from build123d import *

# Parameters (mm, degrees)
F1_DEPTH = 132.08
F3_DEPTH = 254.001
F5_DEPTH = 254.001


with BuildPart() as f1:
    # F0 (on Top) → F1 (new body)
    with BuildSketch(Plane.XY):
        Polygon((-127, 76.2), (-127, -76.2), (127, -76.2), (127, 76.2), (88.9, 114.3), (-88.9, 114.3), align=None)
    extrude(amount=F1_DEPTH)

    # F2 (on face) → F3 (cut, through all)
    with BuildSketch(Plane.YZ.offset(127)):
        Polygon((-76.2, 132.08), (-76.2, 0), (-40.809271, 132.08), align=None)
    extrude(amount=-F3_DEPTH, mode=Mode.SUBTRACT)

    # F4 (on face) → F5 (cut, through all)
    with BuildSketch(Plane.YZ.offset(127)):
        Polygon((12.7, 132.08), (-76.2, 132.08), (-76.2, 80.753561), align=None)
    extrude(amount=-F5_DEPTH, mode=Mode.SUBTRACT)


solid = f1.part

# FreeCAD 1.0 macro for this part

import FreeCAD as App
import Part
import Sketcher

V = App.Vector
Q = App.Units.Quantity


def add_polygon(sketch, points):
    """Adds a closed chain of lines whose ends are joined by coincident constraints."""
    first, n = sketch.GeometryCount, len(points)
    for a, b in zip(points, points[1:] + points[:1]):
        sketch.addGeometry(Part.LineSegment(App.Vector(*a, 0), App.Vector(*b, 0)), False)
    for i in range(n):
        sketch.addConstraint(Sketcher.Constraint("Coincident", first + i, 2, first + (i + 1) % n, 1))

doc = App.newDocument("Part")
body = doc.addObject("PartDesign::Body", "Body")

# Sketch on XY plane
sketch1 = body.newObject("Sketcher::SketchObject", "Sketch")
sketch1.AttachmentSupport = (doc.getObject("XY_Plane"), [""])
sketch1.MapMode = "FlatFace"
add_polygon(sketch1, [(-127, 76), (-127, -76), (127, -76), (127, 76), (89, 114), (-89, 114)])  # lines 0-5
sketch1.addConstraint([
    Sketcher.Constraint("Vertical", 0),
    Sketcher.Constraint("Horizontal", 1),
    Sketcher.Constraint("Vertical", 2),
    Sketcher.Constraint("Horizontal", 4),
    Sketcher.Constraint("Symmetric", 0, 2, 2, 2, -1, 1),
    Sketcher.Constraint("Perpendicular", 3, 5),
    Sketcher.Constraint("Horizontal", 2, 2, 5, 2),
    Sketcher.Constraint("Equal", 3, 5),
    Sketcher.Constraint("DistanceX", 1, 1, 1, 2, Q("10 in")),
    Sketcher.Constraint("DistanceX", 4, 2, 4, 1, Q("7 in")),
    Sketcher.Constraint("DistanceY", 0, 2, 0, 1, Q("6 in")),
])
pad1 = body.newObject("PartDesign::Pad", "Pad")
pad1.Profile = sketch1
pad1.Length = Q("5.2 in")

# Sketch on YZ plane
sketch2 = body.newObject("Sketcher::SketchObject", "Sketch001")
sketch2.AttachmentSupport = (doc.getObject("YZ_Plane"), [""])
sketch2.MapMode = "FlatFace"
sketch2.AttachmentOffset = App.Placement(V(0, 0, 5 * 25.4), App.Rotation())
add_polygon(sketch2, [(-76, 132), (-76, 0), (-41, 132)])  # lines 0-2
sketch2.addConstraint([
    Sketcher.Constraint("Vertical", 0),
    Sketcher.Constraint("Horizontal", 2),
    Sketcher.Constraint("PointOnObject", 0, 2, -1),
    Sketcher.Constraint("DistanceY", 0, 2, 0, 1, Q("5.2 in")),
    Sketcher.Constraint("DistanceX", 0, 2, -1, 1, Q("3 in")),
    Sketcher.Constraint("Angle", 1, Q("75 deg")),
])
pocket1 = body.newObject("PartDesign::Pocket", "Pocket")
pocket1.Profile = sketch2
pocket1.Type = "ThroughAll"

# Sketch on YZ plane
sketch3 = body.newObject("Sketcher::SketchObject", "Sketch002")
sketch3.AttachmentSupport = (doc.getObject("YZ_Plane"), [""])
sketch3.MapMode = "FlatFace"
sketch3.AttachmentOffset = App.Placement(V(0, 0, 5 * 25.4), App.Rotation())
add_polygon(sketch3, [(13, 132), (-76, 132), (-76, 81)])  # lines 0-2
sketch3.addConstraint([
    Sketcher.Constraint("Horizontal", 0),
    Sketcher.Constraint("Vertical", 1),
    Sketcher.Constraint("DistanceX", 0, 2, 0, 1, Q("3.5 in")),
    Sketcher.Constraint("DistanceX", 0, 2, -1, 1, Q("3 in")),
    Sketcher.Constraint("Angle", 2, Q("30 deg")),
    Sketcher.Constraint("DistanceY", -1, 1, 0, 2, Q("5.2 in")),
])
pocket2 = body.newObject("PartDesign::Pocket", "Pocket001")
pocket2.Profile = sketch3
pocket2.Type = "ThroughAll"

doc.recompute()
